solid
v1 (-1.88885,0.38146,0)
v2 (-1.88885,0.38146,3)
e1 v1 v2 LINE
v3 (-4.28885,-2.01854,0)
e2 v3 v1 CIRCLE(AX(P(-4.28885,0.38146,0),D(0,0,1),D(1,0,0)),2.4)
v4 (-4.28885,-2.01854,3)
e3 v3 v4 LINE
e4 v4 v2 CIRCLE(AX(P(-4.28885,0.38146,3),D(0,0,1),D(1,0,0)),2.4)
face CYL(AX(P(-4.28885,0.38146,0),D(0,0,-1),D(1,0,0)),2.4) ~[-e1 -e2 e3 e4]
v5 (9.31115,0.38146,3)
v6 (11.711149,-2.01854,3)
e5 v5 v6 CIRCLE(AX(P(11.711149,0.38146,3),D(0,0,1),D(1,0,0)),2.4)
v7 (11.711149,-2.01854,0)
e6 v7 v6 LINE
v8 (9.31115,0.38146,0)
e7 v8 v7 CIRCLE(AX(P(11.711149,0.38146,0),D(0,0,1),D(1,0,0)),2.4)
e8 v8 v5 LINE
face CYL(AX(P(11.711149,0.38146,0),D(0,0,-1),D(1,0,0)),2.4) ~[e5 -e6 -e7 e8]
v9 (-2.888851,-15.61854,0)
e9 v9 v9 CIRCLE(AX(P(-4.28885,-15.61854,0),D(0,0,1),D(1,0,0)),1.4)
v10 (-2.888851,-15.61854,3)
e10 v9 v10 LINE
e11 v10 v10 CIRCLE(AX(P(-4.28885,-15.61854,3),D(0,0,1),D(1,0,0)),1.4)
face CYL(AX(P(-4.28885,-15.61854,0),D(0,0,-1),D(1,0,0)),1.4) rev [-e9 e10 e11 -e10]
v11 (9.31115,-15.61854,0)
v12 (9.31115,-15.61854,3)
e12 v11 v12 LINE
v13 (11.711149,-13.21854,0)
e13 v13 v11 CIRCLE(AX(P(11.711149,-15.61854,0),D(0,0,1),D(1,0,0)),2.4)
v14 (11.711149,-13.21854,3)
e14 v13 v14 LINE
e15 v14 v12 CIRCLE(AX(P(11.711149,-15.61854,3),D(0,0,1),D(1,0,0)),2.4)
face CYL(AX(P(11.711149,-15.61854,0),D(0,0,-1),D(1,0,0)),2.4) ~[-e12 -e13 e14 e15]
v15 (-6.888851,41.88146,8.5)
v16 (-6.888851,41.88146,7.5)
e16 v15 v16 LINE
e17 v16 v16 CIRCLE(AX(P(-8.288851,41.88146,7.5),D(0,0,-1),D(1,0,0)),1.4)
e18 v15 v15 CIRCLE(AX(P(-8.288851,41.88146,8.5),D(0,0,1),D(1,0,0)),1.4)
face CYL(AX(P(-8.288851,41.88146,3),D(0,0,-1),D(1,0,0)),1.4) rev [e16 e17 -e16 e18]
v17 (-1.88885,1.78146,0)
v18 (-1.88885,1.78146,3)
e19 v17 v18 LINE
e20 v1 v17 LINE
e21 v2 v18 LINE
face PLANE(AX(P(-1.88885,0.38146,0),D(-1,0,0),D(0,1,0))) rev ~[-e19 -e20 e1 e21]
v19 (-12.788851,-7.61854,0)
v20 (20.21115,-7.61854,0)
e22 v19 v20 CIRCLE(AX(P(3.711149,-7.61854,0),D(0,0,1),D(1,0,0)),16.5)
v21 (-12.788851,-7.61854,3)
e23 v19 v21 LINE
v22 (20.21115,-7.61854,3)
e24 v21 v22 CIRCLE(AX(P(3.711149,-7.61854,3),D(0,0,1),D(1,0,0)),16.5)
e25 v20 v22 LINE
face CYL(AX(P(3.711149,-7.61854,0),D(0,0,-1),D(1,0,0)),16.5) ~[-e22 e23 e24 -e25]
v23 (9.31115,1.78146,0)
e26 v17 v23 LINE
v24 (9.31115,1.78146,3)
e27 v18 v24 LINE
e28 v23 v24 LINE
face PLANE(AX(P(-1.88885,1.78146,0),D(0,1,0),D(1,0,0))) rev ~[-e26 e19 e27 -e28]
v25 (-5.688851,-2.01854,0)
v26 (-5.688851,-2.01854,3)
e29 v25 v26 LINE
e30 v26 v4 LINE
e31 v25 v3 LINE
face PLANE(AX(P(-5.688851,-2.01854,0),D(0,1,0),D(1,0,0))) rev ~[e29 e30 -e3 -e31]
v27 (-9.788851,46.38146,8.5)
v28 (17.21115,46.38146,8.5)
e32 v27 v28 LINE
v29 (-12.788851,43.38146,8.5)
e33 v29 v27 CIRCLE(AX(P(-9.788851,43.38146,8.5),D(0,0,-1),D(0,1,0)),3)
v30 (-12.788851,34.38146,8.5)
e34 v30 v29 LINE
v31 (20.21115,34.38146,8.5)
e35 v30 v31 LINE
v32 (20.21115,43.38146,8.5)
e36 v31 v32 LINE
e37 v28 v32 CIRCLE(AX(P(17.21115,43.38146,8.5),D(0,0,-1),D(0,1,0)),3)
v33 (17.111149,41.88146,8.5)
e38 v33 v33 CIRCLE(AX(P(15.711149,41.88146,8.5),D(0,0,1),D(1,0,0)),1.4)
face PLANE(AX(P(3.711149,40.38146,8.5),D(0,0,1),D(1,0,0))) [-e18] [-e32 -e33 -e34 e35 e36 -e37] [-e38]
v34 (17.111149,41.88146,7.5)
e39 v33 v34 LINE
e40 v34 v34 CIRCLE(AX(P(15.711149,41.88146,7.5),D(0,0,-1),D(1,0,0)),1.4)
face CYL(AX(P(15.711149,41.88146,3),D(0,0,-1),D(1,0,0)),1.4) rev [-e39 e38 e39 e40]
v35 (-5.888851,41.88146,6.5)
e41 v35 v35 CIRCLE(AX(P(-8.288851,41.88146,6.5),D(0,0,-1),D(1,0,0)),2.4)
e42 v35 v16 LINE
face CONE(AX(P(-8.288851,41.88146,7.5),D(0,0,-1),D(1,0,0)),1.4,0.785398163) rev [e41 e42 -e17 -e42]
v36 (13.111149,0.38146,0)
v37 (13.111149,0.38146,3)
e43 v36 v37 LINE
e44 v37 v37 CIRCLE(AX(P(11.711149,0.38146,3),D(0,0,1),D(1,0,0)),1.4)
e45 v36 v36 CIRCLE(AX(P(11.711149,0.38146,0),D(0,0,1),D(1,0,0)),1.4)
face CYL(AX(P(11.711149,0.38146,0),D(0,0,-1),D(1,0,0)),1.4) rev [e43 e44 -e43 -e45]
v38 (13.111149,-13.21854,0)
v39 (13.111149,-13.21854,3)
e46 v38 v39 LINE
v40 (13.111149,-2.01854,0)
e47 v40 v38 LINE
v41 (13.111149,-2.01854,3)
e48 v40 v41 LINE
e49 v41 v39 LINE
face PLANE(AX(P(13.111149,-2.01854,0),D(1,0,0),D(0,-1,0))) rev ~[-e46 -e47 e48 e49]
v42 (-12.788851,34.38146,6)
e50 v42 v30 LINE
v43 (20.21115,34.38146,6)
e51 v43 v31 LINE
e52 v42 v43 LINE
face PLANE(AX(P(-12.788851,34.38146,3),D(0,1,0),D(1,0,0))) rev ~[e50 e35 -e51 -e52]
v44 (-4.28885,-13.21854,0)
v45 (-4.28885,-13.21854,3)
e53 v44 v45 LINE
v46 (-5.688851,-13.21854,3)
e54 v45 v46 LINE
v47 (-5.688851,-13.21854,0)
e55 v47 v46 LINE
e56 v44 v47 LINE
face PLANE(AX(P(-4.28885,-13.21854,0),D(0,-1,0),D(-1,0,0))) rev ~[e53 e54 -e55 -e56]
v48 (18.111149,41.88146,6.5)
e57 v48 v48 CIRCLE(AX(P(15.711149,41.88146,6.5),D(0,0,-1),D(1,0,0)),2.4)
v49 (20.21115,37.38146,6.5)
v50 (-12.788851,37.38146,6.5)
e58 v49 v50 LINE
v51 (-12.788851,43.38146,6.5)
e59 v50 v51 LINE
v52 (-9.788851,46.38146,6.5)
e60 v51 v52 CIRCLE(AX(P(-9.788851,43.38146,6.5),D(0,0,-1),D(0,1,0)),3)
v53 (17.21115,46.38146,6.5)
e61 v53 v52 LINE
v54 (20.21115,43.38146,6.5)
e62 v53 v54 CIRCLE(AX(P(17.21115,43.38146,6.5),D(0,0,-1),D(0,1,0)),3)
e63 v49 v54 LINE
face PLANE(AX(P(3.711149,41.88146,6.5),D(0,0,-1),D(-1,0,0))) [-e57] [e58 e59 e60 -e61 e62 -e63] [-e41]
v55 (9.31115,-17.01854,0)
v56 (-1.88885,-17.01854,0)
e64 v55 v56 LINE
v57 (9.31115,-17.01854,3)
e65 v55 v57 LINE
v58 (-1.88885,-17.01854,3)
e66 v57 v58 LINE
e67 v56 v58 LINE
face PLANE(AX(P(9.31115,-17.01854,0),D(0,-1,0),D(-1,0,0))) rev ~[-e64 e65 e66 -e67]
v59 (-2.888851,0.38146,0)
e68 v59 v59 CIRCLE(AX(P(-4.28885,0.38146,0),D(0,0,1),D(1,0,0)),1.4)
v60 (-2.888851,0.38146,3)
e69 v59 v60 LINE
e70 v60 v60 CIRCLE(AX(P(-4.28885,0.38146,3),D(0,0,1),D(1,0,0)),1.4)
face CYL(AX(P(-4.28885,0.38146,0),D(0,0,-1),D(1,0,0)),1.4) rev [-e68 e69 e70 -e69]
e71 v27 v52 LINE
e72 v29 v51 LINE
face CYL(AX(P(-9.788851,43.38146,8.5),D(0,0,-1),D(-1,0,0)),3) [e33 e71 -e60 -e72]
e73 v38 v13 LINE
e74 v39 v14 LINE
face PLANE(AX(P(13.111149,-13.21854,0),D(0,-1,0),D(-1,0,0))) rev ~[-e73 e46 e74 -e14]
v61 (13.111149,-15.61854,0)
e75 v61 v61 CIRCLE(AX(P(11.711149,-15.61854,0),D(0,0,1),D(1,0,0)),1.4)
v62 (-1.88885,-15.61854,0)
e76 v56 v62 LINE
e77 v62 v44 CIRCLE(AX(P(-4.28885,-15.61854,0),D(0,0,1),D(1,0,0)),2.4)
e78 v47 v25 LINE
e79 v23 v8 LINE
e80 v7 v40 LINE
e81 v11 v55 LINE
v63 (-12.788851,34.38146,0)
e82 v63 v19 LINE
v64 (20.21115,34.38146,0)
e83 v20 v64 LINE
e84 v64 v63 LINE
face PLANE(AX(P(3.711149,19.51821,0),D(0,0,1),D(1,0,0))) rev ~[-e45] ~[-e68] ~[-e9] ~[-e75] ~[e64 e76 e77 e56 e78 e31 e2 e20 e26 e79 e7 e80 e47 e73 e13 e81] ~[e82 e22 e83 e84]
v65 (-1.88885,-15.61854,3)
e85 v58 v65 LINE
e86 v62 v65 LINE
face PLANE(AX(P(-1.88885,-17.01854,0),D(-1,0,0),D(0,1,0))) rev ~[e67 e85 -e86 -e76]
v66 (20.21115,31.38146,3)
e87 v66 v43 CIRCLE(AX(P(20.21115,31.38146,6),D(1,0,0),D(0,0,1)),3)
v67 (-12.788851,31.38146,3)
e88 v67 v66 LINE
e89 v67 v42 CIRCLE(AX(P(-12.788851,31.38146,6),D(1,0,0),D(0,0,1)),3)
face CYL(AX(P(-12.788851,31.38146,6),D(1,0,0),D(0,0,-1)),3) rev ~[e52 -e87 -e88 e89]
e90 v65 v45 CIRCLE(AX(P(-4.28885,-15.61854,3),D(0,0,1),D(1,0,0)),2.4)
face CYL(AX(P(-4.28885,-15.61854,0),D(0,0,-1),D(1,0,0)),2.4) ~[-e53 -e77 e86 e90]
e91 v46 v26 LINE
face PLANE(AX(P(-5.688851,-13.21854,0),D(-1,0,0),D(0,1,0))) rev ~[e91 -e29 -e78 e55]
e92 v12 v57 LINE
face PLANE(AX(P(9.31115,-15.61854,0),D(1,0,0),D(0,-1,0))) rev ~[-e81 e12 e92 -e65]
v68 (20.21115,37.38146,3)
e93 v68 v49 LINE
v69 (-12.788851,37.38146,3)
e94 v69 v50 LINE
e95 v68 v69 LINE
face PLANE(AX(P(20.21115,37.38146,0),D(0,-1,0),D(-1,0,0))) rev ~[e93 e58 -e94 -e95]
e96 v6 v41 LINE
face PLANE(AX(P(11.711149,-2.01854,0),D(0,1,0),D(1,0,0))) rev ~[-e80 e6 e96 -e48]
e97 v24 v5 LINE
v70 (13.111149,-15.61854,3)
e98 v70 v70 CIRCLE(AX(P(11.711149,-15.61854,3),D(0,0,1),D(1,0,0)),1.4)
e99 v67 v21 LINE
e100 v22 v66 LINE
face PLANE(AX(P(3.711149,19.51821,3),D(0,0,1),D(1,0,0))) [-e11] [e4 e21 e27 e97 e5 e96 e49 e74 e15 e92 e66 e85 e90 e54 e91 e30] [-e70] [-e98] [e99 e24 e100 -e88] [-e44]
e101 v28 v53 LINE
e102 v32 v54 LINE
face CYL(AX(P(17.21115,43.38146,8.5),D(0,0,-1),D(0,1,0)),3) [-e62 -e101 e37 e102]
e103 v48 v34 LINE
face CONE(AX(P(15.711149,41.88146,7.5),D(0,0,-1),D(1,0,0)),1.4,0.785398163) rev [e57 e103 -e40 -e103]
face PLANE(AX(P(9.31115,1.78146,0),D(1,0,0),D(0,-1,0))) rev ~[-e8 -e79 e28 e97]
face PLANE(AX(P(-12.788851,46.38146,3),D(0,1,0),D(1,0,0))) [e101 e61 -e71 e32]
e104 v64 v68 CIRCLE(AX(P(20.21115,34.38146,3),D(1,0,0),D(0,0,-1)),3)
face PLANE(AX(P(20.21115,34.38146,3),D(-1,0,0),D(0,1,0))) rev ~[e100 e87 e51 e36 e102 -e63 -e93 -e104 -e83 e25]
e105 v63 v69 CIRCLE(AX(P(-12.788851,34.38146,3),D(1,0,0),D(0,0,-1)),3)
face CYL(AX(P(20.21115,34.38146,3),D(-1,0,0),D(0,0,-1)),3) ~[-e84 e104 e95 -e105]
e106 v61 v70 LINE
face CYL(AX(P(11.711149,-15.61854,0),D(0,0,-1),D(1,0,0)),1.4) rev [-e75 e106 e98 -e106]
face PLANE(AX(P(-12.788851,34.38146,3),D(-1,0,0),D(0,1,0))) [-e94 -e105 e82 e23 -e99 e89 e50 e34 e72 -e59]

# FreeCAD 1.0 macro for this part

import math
import FreeCAD as App
import Part
import Sketcher
Q = App.Units.Quantity


def edges_at(feature, points):
    """Names of the edges that pass closest to the given points."""
    edges = feature.Shape.Edges
    near = lambda p: min(range(len(edges)), key=lambda i: edges[i].distToShape(Part.Vertex(*p))[0])
    return sorted({f"Edge{near(p) + 1}" for p in points})

doc = App.newDocument("Part")
body = doc.addObject("PartDesign::Body", "Body")

# Sketch on XY plane
sketch1 = body.newObject("Sketcher::SketchObject", "Sketch")
sketch1.AttachmentSupport = (doc.getObject("XY_Plane"), [""])
sketch1.MapMode = "FlatFace"
sketch1.addGeometry([
    Part.Circle(App.Vector(3.711149, -7.61854, 0), App.Vector(0, 0, 1), 16.5),  # 0
    Part.LineSegment(App.Vector(-5.688851, -2.01854, 0), App.Vector(-4.28885, -2.01854, 0)),  # 1
    Part.ArcOfCircle(Part.Circle(App.Vector(-4.28885, 0.38146, 0), App.Vector(0, 0, 1), 2.4), math.radians(-90), math.radians(0)),  # 2
    Part.LineSegment(App.Vector(-1.88885, 0.38146, 0), App.Vector(-1.88885, 1.78146, 0)),  # 3
    Part.LineSegment(App.Vector(-1.88885, 1.78146, 0), App.Vector(9.31115, 1.78146, 0)),  # 4
    Part.LineSegment(App.Vector(9.31115, 1.78146, 0), App.Vector(9.31115, 0.38146, 0)),  # 5
    Part.ArcOfCircle(Part.Circle(App.Vector(11.711149, 0.38146, 0), App.Vector(0, 0, 1), 2.4), math.radians(180), math.radians(270)),  # 6
    Part.LineSegment(App.Vector(11.711149, -2.01854, 0), App.Vector(13.111149, -2.01854, 0)),  # 7
    Part.LineSegment(App.Vector(13.111149, -2.01854, 0), App.Vector(13.111149, -13.21854, 0)),  # 8
    Part.LineSegment(App.Vector(13.111149, -13.21854, 0), App.Vector(11.711149, -13.21854, 0)),  # 9
    Part.ArcOfCircle(Part.Circle(App.Vector(11.711149, -15.61854, 0), App.Vector(0, 0, 1), 2.4), math.radians(90), math.radians(180)),  # 10
    Part.LineSegment(App.Vector(9.31115, -15.61854, 0), App.Vector(9.31115, -17.01854, 0)),  # 11
    Part.LineSegment(App.Vector(9.31115, -17.01854, 0), App.Vector(-1.88885, -17.01854, 0)),  # 12
    Part.LineSegment(App.Vector(-1.88885, -17.01854, 0), App.Vector(-1.88885, -15.61854, 0)),  # 13
    Part.ArcOfCircle(Part.Circle(App.Vector(-4.28885, -15.61854, 0), App.Vector(0, 0, 1), 2.4), math.radians(0), math.radians(90)),  # 14
    Part.LineSegment(App.Vector(-4.28885, -13.21854, 0), App.Vector(-5.688851, -13.21854, 0)),  # 15
    Part.LineSegment(App.Vector(-5.688851, -13.21854, 0), App.Vector(-5.688851, -2.01854, 0)),  # 16
    Part.Circle(App.Vector(-4.28885, -15.61854, 0), App.Vector(0, 0, 1), 1.4),  # 17
    Part.Circle(App.Vector(11.711149, -15.61854, 0), App.Vector(0, 0, 1), 1.4),  # 18
    Part.Circle(App.Vector(11.711149, 0.38146, 0), App.Vector(0, 0, 1), 1.4),  # 19
    Part.Circle(App.Vector(-4.28885, 0.38146, 0), App.Vector(0, 0, 1), 1.4),  # 20
], False)
sketch1.addConstraint([
    Sketcher.Constraint("Tangent", 1, 2, 2, 1),
    Sketcher.Constraint("Tangent", 2, 2, 3, 1),
    Sketcher.Constraint("Coincident", 3, 2, 4, 1),
    Sketcher.Constraint("Coincident", 4, 2, 5, 1),
    Sketcher.Constraint("Tangent", 5, 2, 6, 1),
    Sketcher.Constraint("Tangent", 6, 2, 7, 1),
    Sketcher.Constraint("Coincident", 7, 2, 8, 1),
    Sketcher.Constraint("Coincident", 8, 2, 9, 1),
    Sketcher.Constraint("Tangent", 9, 2, 10, 1),
    Sketcher.Constraint("Tangent", 10, 2, 11, 1),
    Sketcher.Constraint("Coincident", 11, 2, 12, 1),
    Sketcher.Constraint("Coincident", 12, 2, 13, 1),
    Sketcher.Constraint("Tangent", 13, 2, 14, 1),
    Sketcher.Constraint("Tangent", 14, 2, 15, 1),
    Sketcher.Constraint("Coincident", 15, 2, 16, 1),
    Sketcher.Constraint("Coincident", 16, 2, 1, 1),
    Sketcher.Constraint("Horizontal", 1),
    Sketcher.Constraint("Vertical", 3),
    Sketcher.Constraint("Horizontal", 4),
    Sketcher.Constraint("Vertical", 5),
    Sketcher.Constraint("Horizontal", 7),
    Sketcher.Constraint("Vertical", 8),
    Sketcher.Constraint("Horizontal", 9),
    Sketcher.Constraint("Vertical", 11),
    Sketcher.Constraint("Horizontal", 12),
    Sketcher.Constraint("Vertical", 13),
    Sketcher.Constraint("Horizontal", 15),
    Sketcher.Constraint("Vertical", 16),
    Sketcher.Constraint("Coincident", 17, 3, 14, 3),
    Sketcher.Constraint("Coincident", 18, 3, 10, 3),
    Sketcher.Constraint("Coincident", 19, 3, 6, 3),
    Sketcher.Constraint("Coincident", 20, 3, 2, 3),
    Sketcher.Constraint("Equal", 2, 6),
    Sketcher.Constraint("Equal", 6, 10),
    Sketcher.Constraint("Equal", 10, 14),
    Sketcher.Constraint("Equal", 17, 18),
    Sketcher.Constraint("Equal", 18, 19),
    Sketcher.Constraint("Equal", 19, 20),
    Sketcher.Constraint("Horizontal", 2, 3, 6, 3),
    Sketcher.Constraint("Horizontal", 10, 3, 14, 3),
    Sketcher.Constraint("Vertical", 6, 3, 10, 3),
    Sketcher.Constraint("Vertical", 2, 3, 14, 3),
    Sketcher.Constraint("Equal", 1, 7),
    Sketcher.Constraint("Equal", 15, 3),
    Sketcher.Constraint("Equal", 12, 8),
    Sketcher.Constraint("Equal", 5, 11),
    Sketcher.Constraint("Diameter", 0, Q("33 mm")),
    Sketcher.Constraint("Diameter", 17, Q("2.8 mm")),
    Sketcher.Constraint("Radius", 2, Q("2.4 mm")),
    Sketcher.Constraint("DistanceX", 1, 1, 1, 2, Q("1.4 mm")),
    Sketcher.Constraint("DistanceX", 4, 1, 4, 2, Q("11.2 mm")),
    Sketcher.Constraint("DistanceX", 2, 3, 0, 3, Q("8 mm")),
    Sketcher.Constraint("DistanceY", 0, 3, 2, 3, Q("8 mm")),
    Sketcher.Constraint("DistanceX", -1, 1, 0, 3, Q("3.711149 mm")),
    Sketcher.Constraint("DistanceY", 0, 3, -1, 1, Q("7.61854 mm")),
])
pad1 = body.newObject("PartDesign::Pad", "Pad")
pad1.Profile = sketch1
pad1.Length = 3

# Sketch on XY plane
sketch2 = body.newObject("Sketcher::SketchObject", "Sketch001")
sketch2.AttachmentSupport = (doc.getObject("XY_Plane"), [""])
sketch2.MapMode = "FlatFace"
sketch2.addGeometry([
    Part.LineSegment(App.Vector(-12.788851, 46.38146, 0), App.Vector(-12.788851, -7.61854, 0)),  # 0
    Part.ArcOfCircle(Part.Circle(App.Vector(3.711149, -7.61854, 0), App.Vector(0, 0, 1), 16.5), math.radians(0), math.radians(180)),  # 1
    Part.LineSegment(App.Vector(20.21115, -7.61854, 0), App.Vector(20.21115, 46.38146, 0)),  # 2
    Part.LineSegment(App.Vector(20.21115, 46.38146, 0), App.Vector(-12.788851, 46.38146, 0)),  # 3
    Part.Circle(App.Vector(-8.288851, 41.88146, 0), App.Vector(0, 0, 1), 1.4),  # 4
    Part.Circle(App.Vector(15.711149, 41.88146, 0), App.Vector(0, 0, 1), 1.4),  # 5
], False)
sketch2.addConstraint([
    Sketcher.Constraint("Tangent", 0, 2, 1, 2),
    Sketcher.Constraint("Tangent", 1, 1, 2, 1),
    Sketcher.Constraint("Coincident", 2, 2, 3, 1),
    Sketcher.Constraint("Coincident", 3, 2, 0, 1),
    Sketcher.Constraint("Vertical", 0),
    Sketcher.Constraint("Vertical", 2),
    Sketcher.Constraint("Horizontal", 3),
    Sketcher.Constraint("Equal", 4, 5),
    Sketcher.Constraint("Horizontal", 4, 3, 5, 3),
    Sketcher.Constraint("Diameter", 4, Q("2.8 mm")),
    Sketcher.Constraint("Radius", 1, Q("16.5 mm")),
    Sketcher.Constraint("DistanceY", 0, 2, 0, 1, Q("54 mm")),
    Sketcher.Constraint("DistanceX", 4, 3, 1, 3, Q("12 mm")),
    Sketcher.Constraint("DistanceX", 4, 3, 5, 3, Q("24 mm")),
    Sketcher.Constraint("DistanceY", 1, 3, 4, 3, Q("49.5 mm")),
    Sketcher.Constraint("DistanceX", -1, 1, 1, 3, Q("3.711149 mm")),
    Sketcher.Constraint("DistanceY", 1, 3, -1, 1, Q("7.61854 mm")),
])
pad2 = body.newObject("PartDesign::Pad", "Pad001")
pad2.Profile = sketch2
pad2.Length = 3

# Sketch on XY plane
sketch3 = body.newObject("Sketcher::SketchObject", "Sketch002")
sketch3.AttachmentSupport = (doc.getObject("XY_Plane"), [""])
sketch3.MapMode = "FlatFace"
sketch3.AttachmentOffset = App.Placement(App.Vector(0, 0, 3), App.Rotation())
sketch3.addGeometry([
    Part.LineSegment(App.Vector(-12.788851, 46.38146, 0), App.Vector(-12.788851, 34.38146, 0)),  # 0
    Part.LineSegment(App.Vector(-12.788851, 34.38146, 0), App.Vector(20.21115, 34.38146, 0)),  # 1
    Part.LineSegment(App.Vector(20.21115, 34.38146, 0), App.Vector(20.21115, 46.38146, 0)),  # 2
    Part.LineSegment(App.Vector(20.21115, 46.38146, 0), App.Vector(-12.788851, 46.38146, 0)),  # 3
    Part.Circle(App.Vector(-8.288851, 41.88146, 0), App.Vector(0, 0, 1), 1.4),  # 4
    Part.Circle(App.Vector(15.711149, 41.88146, 0), App.Vector(0, 0, 1), 1.4),  # 5
], False)
sketch3.addConstraint([
    Sketcher.Constraint("Coincident", 0, 2, 1, 1),
    Sketcher.Constraint("Coincident", 1, 2, 2, 1),
    Sketcher.Constraint("Coincident", 2, 2, 3, 1),
    Sketcher.Constraint("Coincident", 3, 2, 0, 1),
    Sketcher.Constraint("Vertical", 0),
    Sketcher.Constraint("Horizontal", 1),
    Sketcher.Constraint("Vertical", 2),
    Sketcher.Constraint("Horizontal", 3),
    Sketcher.Constraint("Equal", 4, 5),
    Sketcher.Constraint("Horizontal", 4, 3, 5, 3),
    Sketcher.Constraint("Diameter", 4, Q("2.8 mm")),
    Sketcher.Constraint("DistanceX", 1, 1, 1, 2, Q("33 mm")),
    Sketcher.Constraint("DistanceY", 0, 2, 0, 1, Q("12 mm")),
    Sketcher.Constraint("DistanceX", 4, 3, 5, 3, Q("24 mm")),
    Sketcher.Constraint("DistanceX", 0, 2, 4, 3, Q("4.5 mm")),
    Sketcher.Constraint("DistanceY", 0, 2, 4, 3, Q("7.5 mm")),
    Sketcher.Constraint("DistanceX", 4, 3, -1, 1, Q("8.288851 mm")),
    Sketcher.Constraint("DistanceY", -1, 1, 4, 3, Q("41.88146 mm")),
])
pad3 = body.newObject("PartDesign::Pad", "Pad002")
pad3.Profile = sketch3
pad3.Length = 5.5

# Sketch on XY plane
sketch4 = body.newObject("Sketcher::SketchObject", "Sketch003")
sketch4.AttachmentSupport = (doc.getObject("XY_Plane"), [""])
sketch4.MapMode = "FlatFace"
sketch4.addGeometry([
    Part.LineSegment(App.Vector(20.21115, 46.38146, 0), App.Vector(20.21115, 37.38146, 0)),
    Part.LineSegment(App.Vector(20.21115, 37.38146, 0), App.Vector(-12.788851, 37.38146, 0)),
    Part.LineSegment(App.Vector(-12.788851, 37.38146, 0), App.Vector(-12.788851, 46.38146, 0)),
    Part.LineSegment(App.Vector(-12.788851, 46.38146, 0), App.Vector(20.21115, 46.38146, 0)),
], False)
sketch4.addConstraint([
    Sketcher.Constraint("Coincident", 0, 2, 1, 1),
    Sketcher.Constraint("Coincident", 1, 2, 2, 1),
    Sketcher.Constraint("Coincident", 2, 2, 3, 1),
    Sketcher.Constraint("Coincident", 3, 2, 0, 1),
    Sketcher.Constraint("Vertical", 0),
    Sketcher.Constraint("Horizontal", 1),
    Sketcher.Constraint("Vertical", 2),
    Sketcher.Constraint("Horizontal", 3),
    Sketcher.Constraint("DistanceX", 1, 2, 1, 1, Q("33 mm")),
    Sketcher.Constraint("DistanceY", 0, 2, 0, 1, Q("9 mm")),
    Sketcher.Constraint("DistanceX", -1, 1, 0, 2, Q("20.21115 mm")),
    Sketcher.Constraint("DistanceY", -1, 1, 0, 2, Q("37.38146 mm")),
])
pocket1 = body.newObject("PartDesign::Pocket", "Pocket")
pocket1.Profile = sketch4
pocket1.Length = 6.5
pocket1.Reversed = True
doc.recompute()

fillet = body.newObject("PartDesign::Fillet", "Fillet")
fillet.Base = (pocket1, edges_at(pocket1, [
    (20.211, 46.381, 7.5),
    (-12.789, 46.381, 7.5),
    (3.711, 37.381, 0),
    (3.711, 34.381, 3),
]))
fillet.Radius = 3
doc.recompute()

chamfer = body.newObject("PartDesign::Chamfer", "Chamfer")
chamfer.Base = (fillet, edges_at(fillet, [(-9.689, 41.881, 6.5), (14.311, 41.881, 6.5)]))
chamfer.Size = 1

doc.recompute()
